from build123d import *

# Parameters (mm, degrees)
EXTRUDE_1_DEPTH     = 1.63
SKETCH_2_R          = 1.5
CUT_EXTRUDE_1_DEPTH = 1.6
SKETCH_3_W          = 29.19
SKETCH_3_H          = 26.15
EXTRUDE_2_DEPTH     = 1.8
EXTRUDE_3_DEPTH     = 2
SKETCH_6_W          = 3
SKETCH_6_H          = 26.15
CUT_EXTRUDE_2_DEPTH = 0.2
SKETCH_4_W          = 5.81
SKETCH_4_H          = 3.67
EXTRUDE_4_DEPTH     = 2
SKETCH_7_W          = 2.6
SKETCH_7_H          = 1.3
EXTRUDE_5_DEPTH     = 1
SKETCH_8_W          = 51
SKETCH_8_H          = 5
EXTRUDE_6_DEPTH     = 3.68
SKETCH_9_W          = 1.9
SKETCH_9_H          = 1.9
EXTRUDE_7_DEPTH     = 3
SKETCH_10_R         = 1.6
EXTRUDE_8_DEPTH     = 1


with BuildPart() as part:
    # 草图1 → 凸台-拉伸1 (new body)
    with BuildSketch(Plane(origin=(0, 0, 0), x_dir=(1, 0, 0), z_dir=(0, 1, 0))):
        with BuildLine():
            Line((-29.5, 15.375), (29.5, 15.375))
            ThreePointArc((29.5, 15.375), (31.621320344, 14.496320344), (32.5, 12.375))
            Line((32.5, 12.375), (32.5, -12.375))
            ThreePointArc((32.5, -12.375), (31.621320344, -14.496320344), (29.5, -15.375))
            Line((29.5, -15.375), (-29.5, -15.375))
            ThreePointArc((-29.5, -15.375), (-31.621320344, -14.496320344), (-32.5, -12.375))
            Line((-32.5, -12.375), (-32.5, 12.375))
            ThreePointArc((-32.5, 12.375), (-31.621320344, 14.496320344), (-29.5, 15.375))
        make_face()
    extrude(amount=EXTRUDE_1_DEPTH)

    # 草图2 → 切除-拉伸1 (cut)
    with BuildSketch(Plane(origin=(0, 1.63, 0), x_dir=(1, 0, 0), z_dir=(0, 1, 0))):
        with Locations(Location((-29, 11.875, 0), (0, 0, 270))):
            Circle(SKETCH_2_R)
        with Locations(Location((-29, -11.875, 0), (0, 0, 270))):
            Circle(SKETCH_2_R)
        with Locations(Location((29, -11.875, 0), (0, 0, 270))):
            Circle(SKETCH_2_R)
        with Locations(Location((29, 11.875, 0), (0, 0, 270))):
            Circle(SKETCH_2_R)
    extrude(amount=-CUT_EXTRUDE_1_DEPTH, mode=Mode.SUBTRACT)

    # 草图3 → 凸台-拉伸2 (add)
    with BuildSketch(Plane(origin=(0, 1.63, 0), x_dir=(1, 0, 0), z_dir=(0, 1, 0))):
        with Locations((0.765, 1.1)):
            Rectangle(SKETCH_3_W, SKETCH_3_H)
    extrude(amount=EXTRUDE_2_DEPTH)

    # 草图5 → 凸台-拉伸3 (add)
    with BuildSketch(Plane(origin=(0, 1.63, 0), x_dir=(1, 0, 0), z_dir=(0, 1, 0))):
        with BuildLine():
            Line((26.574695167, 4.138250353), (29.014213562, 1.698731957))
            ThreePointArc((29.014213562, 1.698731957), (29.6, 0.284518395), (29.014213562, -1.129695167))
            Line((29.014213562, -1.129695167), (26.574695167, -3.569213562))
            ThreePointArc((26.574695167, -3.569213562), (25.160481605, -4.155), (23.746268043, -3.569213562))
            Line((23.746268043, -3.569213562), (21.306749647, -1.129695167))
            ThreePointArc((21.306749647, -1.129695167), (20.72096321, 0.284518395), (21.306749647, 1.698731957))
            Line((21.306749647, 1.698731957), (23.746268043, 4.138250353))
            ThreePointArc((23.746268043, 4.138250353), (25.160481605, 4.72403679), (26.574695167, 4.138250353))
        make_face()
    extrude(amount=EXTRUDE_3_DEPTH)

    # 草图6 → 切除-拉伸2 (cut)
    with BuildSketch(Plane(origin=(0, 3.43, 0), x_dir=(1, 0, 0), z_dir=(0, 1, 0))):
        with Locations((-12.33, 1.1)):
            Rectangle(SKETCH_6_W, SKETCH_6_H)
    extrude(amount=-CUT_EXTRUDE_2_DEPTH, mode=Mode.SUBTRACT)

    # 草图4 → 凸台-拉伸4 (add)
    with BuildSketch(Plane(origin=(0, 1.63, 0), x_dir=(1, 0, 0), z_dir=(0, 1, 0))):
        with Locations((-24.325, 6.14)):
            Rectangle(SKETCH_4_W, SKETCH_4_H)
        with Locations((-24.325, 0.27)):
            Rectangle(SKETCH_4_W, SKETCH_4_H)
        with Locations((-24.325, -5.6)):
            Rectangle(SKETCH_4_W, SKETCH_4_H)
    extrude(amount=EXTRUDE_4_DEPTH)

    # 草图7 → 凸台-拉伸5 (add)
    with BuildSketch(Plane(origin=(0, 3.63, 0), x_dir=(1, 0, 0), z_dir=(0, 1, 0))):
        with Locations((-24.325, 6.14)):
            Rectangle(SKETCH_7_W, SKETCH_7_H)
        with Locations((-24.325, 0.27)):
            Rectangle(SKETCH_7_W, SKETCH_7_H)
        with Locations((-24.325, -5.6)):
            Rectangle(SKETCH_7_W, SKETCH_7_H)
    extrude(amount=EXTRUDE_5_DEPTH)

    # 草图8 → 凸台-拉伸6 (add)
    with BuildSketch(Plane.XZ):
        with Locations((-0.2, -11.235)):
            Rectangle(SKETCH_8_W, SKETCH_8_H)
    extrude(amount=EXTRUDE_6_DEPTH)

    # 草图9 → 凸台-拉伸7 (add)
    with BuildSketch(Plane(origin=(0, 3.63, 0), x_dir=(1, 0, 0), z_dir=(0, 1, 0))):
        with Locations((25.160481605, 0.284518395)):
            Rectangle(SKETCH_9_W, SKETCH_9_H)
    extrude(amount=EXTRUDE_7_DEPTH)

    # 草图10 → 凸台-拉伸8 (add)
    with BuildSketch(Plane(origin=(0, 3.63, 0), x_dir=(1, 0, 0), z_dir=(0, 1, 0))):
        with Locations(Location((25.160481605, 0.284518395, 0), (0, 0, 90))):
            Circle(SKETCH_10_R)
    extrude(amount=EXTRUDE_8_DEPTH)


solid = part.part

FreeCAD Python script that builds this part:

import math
import FreeCAD as App
import Part
import Sketcher

doc = App.newDocument("Part")
body = doc.addObject("PartDesign::Body", "Body")

sketch1 = doc.addObject("Sketcher::SketchObject", "Sketch")
body.addObject(sketch1)
sketch1.AttachmentSupport = (doc.XZ_Plane, [""])
sketch1.MapMode = "FlatFace"
sketch1.addGeometry([
    Part.LineSegment(App.Vector(29.5, -15.4, 0), App.Vector(-29.5, -15.4, 0)),
    Part.ArcOfCircle(Part.Circle(App.Vector(-29.5, -12.4, 0), App.Vector(0, 0, 1), 3), math.radians(180), math.radians(270)),
    Part.LineSegment(App.Vector(-32.5, -12.4, 0), App.Vector(-32.5, 12.4, 0)),
    Part.ArcOfCircle(Part.Circle(App.Vector(-29.5, 12.4, 0), App.Vector(0, 0, 1), 3), math.radians(90), math.radians(180)),
    Part.LineSegment(App.Vector(-29.5, 15.4, 0), App.Vector(29.5, 15.4, 0)),
    Part.ArcOfCircle(Part.Circle(App.Vector(29.5, 12.4, 0), App.Vector(0, 0, 1), 3), math.radians(0), math.radians(90)),
    Part.LineSegment(App.Vector(32.5, 12.4, 0), App.Vector(32.5, -12.4, 0)),
    Part.ArcOfCircle(Part.Circle(App.Vector(29.5, -12.4, 0), App.Vector(0, 0, 1), 3), math.radians(-90), math.radians(0)),
], False)
sketch1.addConstraint([
    Sketcher.Constraint("Tangent", 0, 2, 1, 2),
    Sketcher.Constraint("Tangent", 1, 1, 2, 1),
    Sketcher.Constraint("Tangent", 2, 2, 3, 2),
    Sketcher.Constraint("Tangent", 3, 1, 4, 1),
    Sketcher.Constraint("Tangent", 4, 2, 5, 2),
    Sketcher.Constraint("Tangent", 5, 1, 6, 1),
    Sketcher.Constraint("Tangent", 6, 2, 7, 2),
    Sketcher.Constraint("Tangent", 7, 1, 0, 1),
    Sketcher.Constraint("Horizontal", 0),
    Sketcher.Constraint("Vertical", 2),
    Sketcher.Constraint("Horizontal", 4),
    Sketcher.Constraint("Vertical", 6),
    Sketcher.Constraint("Equal", 1, 3),
    Sketcher.Constraint("Equal", 3, 5),
    Sketcher.Constraint("Equal", 5, 7),
    Sketcher.Constraint("Symmetric", 1, 3, 5, 3, -1, 1),
    Sketcher.Constraint("Radius", 1, 3.0),
    Sketcher.Constraint("DistanceX", 0, 2, 0, 1, 59.0),
    Sketcher.Constraint("DistanceY", 2, 1, 2, 2, 24.75),
])
pad1 = doc.addObject("PartDesign::Pad", "Pad")
body.addObject(pad1)
pad1.Profile = sketch1
pad1.Length = 1.63
pad1.Reversed = True

sketch2 = doc.addObject("Sketcher::SketchObject", "Sketch001")
body.addObject(sketch2)
sketch2.AttachmentSupport = (doc.XZ_Plane, [""])
sketch2.MapMode = "FlatFace"
sketch2.AttachmentOffset = App.Placement(App.Vector(0, 0, -1.63), App.Rotation())
sketch2.addGeometry([
    Part.Circle(App.Vector(-29, -11.9, 0), App.Vector(0, 0, 1), 1.5),
    Part.Circle(App.Vector(-29, 11.9, 0), App.Vector(0, 0, 1), 1.5),
    Part.Circle(App.Vector(29, 11.9, 0), App.Vector(0, 0, 1), 1.5),
    Part.Circle(App.Vector(29, -11.9, 0), App.Vector(0, 0, 1), 1.5),
], False)
sketch2.addConstraint([
    Sketcher.Constraint("Equal", 0, 1),
    Sketcher.Constraint("Equal", 1, 2),
    Sketcher.Constraint("Equal", 2, 3),
    Sketcher.Constraint("Symmetric", 0, 3, 2, 3, -1, 1),
    Sketcher.Constraint("Symmetric", 1, 3, 3, 3, -1, 1),
    Sketcher.Constraint("Symmetric", 1, 3, 2, 3, -2),
    Sketcher.Constraint("Diameter", 0, 3.0),
    Sketcher.Constraint("DistanceX", 0, 3, -1, 1, 29.0),
    Sketcher.Constraint("DistanceY", 0, 3, 1, 3, 23.75),
])
pocket1 = doc.addObject("PartDesign::Pocket", "Pocket")
body.addObject(pocket1)
pocket1.Profile = sketch2
pocket1.Length = 1.6
pocket1.Reversed = True

sketch3 = doc.addObject("Sketcher::SketchObject", "Sketch002")
body.addObject(sketch3)
sketch3.AttachmentSupport = (doc.XZ_Plane, [""])
sketch3.MapMode = "FlatFace"
sketch3.AttachmentOffset = App.Placement(App.Vector(0, 0, -1.63), App.Rotation())
sketch3.addGeometry([
    Part.LineSegment(App.Vector(-14, -14, 0), App.Vector(-14, 12, 0)),
    Part.LineSegment(App.Vector(-14, 12, 0), App.Vector(15, 12, 0)),
    Part.LineSegment(App.Vector(15, 12, 0), App.Vector(15, -14, 0)),
    Part.LineSegment(App.Vector(15, -14, 0), App.Vector(-14, -14, 0)),
], False)
sketch3.addConstraint([
    Sketcher.Constraint("Coincident", 0, 2, 1, 1),
    Sketcher.Constraint("Coincident", 1, 2, 2, 1),
    Sketcher.Constraint("Coincident", 2, 2, 3, 1),
    Sketcher.Constraint("Coincident", 3, 2, 0, 1),
    Sketcher.Constraint("Vertical", 0),
    Sketcher.Constraint("Horizontal", 1),
    Sketcher.Constraint("Vertical", 2),
    Sketcher.Constraint("Horizontal", 3),
    Sketcher.Constraint("DistanceX", 1, 1, 1, 2, 29.19),
    Sketcher.Constraint("DistanceY", 0, 1, 0, 2, 26.15),
    Sketcher.Constraint("DistanceX", 0, 2, -1, 1, 13.83),
    Sketcher.Constraint("DistanceY", -1, 1, 0, 2, 11.975),
])
pad2 = doc.addObject("PartDesign::Pad", "Pad001")
body.addObject(pad2)
pad2.Profile = sketch3
pad2.Length = 1.8
pad2.Reversed = True

sketch4 = doc.addObject("Sketcher::SketchObject", "Sketch003")
body.addObject(sketch4)
sketch4.AttachmentSupport = (doc.XZ_Plane, [""])
sketch4.MapMode = "FlatFace"
sketch4.AttachmentOffset = App.Placement(App.Vector(0, 0, -1.63), App.Rotation())
sketch4.addGeometry([
    Part.LineSegment(App.Vector(29, -1.7, 0), App.Vector(26.6, -4.1, 0)),
    Part.ArcOfCircle(Part.Circle(App.Vector(25.2, -2.7, 0), App.Vector(0, 0, 1), 2), math.radians(-135), math.radians(-45)),
    Part.LineSegment(App.Vector(23.7, -4.1, 0), App.Vector(21.3, -1.7, 0)),
    Part.ArcOfCircle(Part.Circle(App.Vector(22.7, -0.3, 0), App.Vector(0, 0, 1), 2), math.radians(135), math.radians(225)),
    Part.LineSegment(App.Vector(21.3, 1.1, 0), App.Vector(23.7, 3.6, 0)),
    Part.ArcOfCircle(Part.Circle(App.Vector(25.2, 2.2, 0), App.Vector(0, 0, 1), 2), math.radians(45), math.radians(135)),
    Part.LineSegment(App.Vector(26.6, 3.6, 0), App.Vector(29, 1.1, 0)),
    Part.ArcOfCircle(Part.Circle(App.Vector(27.6, -0.3, 0), App.Vector(0, 0, 1), 2), math.radians(-45), math.radians(45)),
], False)
sketch4.addConstraint([
    Sketcher.Constraint("Tangent", 0, 2, 1, 2),
    Sketcher.Constraint("Tangent", 1, 1, 2, 1),
    Sketcher.Constraint("Tangent", 2, 2, 3, 2),
    Sketcher.Constraint("Tangent", 3, 1, 4, 1),
    Sketcher.Constraint("Tangent", 4, 2, 5, 2),
    Sketcher.Constraint("Tangent", 5, 1, 6, 1),
    Sketcher.Constraint("Tangent", 6, 2, 7, 2),
    Sketcher.Constraint("Tangent", 7, 1, 0, 1),
    Sketcher.Constraint("Equal", 1, 3),
    Sketcher.Constraint("Equal", 3, 5),
    Sketcher.Constraint("Equal", 5, 7),
    Sketcher.Constraint("Perpendicular", 0, 2),
    Sketcher.Constraint("Perpendicular", 2, 4),
    Sketcher.Constraint("Perpendicular", 4, 6),
    Sketcher.Constraint("Horizontal", 3, 3, 7, 3),
    Sketcher.Constraint("Horizontal", 0, 2, 1, 1),
    Sketcher.Constraint("Radius", 1, 2.0),
    Sketcher.Constraint("DistanceX", -1, 1, 7, 3, 27.6),
    Sketcher.Constraint("Distance", 0, 3.45),
    Sketcher.Constraint("DistanceY", -1, 1, 5, 3, 2.155),
])
pad3 = doc.addObject("PartDesign::Pad", "Pad002")
body.addObject(pad3)
pad3.Profile = sketch4
pad3.Length = 2
pad3.Reversed = True

sketch5 = doc.addObject("Sketcher::SketchObject", "Sketch004")
body.addObject(sketch5)
sketch5.AttachmentSupport = (doc.XZ_Plane, [""])
sketch5.MapMode = "FlatFace"
sketch5.AttachmentOffset = App.Placement(App.Vector(0, 0, -3.43), App.Rotation())
sketch5.addGeometry([
    Part.LineSegment(App.Vector(-13.8, -14.2, 0), App.Vector(-13.8, 12, 0)),
    Part.LineSegment(App.Vector(-13.8, 12, 0), App.Vector(-10.8, 12, 0)),
    Part.LineSegment(App.Vector(-10.8, 12, 0), App.Vector(-10.8, -14.2, 0)),
    Part.LineSegment(App.Vector(-10.8, -14.2, 0), App.Vector(-13.8, -14.2, 0)),
], False)
sketch5.addConstraint([
    Sketcher.Constraint("Coincident", 0, 2, 1, 1),
    Sketcher.Constraint("Coincident", 1, 2, 2, 1),
    Sketcher.Constraint("Coincident", 2, 2, 3, 1),
    Sketcher.Constraint("Coincident", 3, 2, 0, 1),
    Sketcher.Constraint("Vertical", 0),
    Sketcher.Constraint("Horizontal", 1),
    Sketcher.Constraint("Vertical", 2),
    Sketcher.Constraint("Horizontal", 3),
    Sketcher.Constraint("DistanceX", 1, 1, 1, 2, 3.0),
    Sketcher.Constraint("DistanceY", 0, 1, 0, 2, 26.15),
    Sketcher.Constraint("DistanceX", 0, 2, -1, 1, 13.83),
    Sketcher.Constraint("DistanceY", -1, 1, 0, 2, 11.975),
])
pocket2 = doc.addObject("PartDesign::Pocket", "Pocket001")
body.addObject(pocket2)
pocket2.Profile = sketch5
pocket2.Length = 0.2
pocket2.Reversed = True

sketch6 = doc.addObject("Sketcher::SketchObject", "Sketch005")
body.addObject(sketch6)
sketch6.AttachmentSupport = (doc.XZ_Plane, [""])
sketch6.MapMode = "FlatFace"
sketch6.AttachmentOffset = App.Placement(App.Vector(0, 0, -1.63), App.Rotation())
sketch6.addGeometry([
    Part.LineSegment(App.Vector(-27.2, -8, 0), App.Vector(-27.2, -4.3, 0)),
    Part.LineSegment(App.Vector(-27.2, -4.3, 0), App.Vector(-21.4, -4.3, 0)),
    Part.LineSegment(App.Vector(-21.4, -4.3, 0), App.Vector(-21.4, -8, 0)),
    Part.LineSegment(App.Vector(-21.4, -8, 0), App.Vector(-27.2, -8, 0)),
    Part.LineSegment(App.Vector(-27.2, -2.1, 0), App.Vector(-27.2, 1.6, 0)),
    Part.LineSegment(App.Vector(-27.2, 1.6, 0), App.Vector(-21.4, 1.6, 0)),
    Part.LineSegment(App.Vector(-21.4, 1.6, 0), App.Vector(-21.4, -2.1, 0)),
    Part.LineSegment(App.Vector(-21.4, -2.1, 0), App.Vector(-27.2, -2.1, 0)),
    Part.LineSegment(App.Vector(-27.2, 3.8, 0), App.Vector(-27.2, 7.4, 0)),
    Part.LineSegment(App.Vector(-27.2, 7.4, 0), App.Vector(-21.4, 7.4, 0)),
    Part.LineSegment(App.Vector(-21.4, 7.4, 0), App.Vector(-21.4, 3.8, 0)),
    Part.LineSegment(App.Vector(-21.4, 3.8, 0), App.Vector(-27.2, 3.8, 0)),
], False)
sketch6.addConstraint([
    Sketcher.Constraint("Coincident", 0, 2, 1, 1),
    Sketcher.Constraint("Coincident", 1, 2, 2, 1),
    Sketcher.Constraint("Coincident", 2, 2, 3, 1),
    Sketcher.Constraint("Coincident", 3, 2, 0, 1),
    Sketcher.Constraint("Coincident", 4, 2, 5, 1),
    Sketcher.Constraint("Coincident", 5, 2, 6, 1),
    Sketcher.Constraint("Coincident", 6, 2, 7, 1),
    Sketcher.Constraint("Coincident", 7, 2, 4, 1),
    Sketcher.Constraint("Coincident", 8, 2, 9, 1),
    Sketcher.Constraint("Coincident", 9, 2, 10, 1),
    Sketcher.Constraint("Coincident", 10, 2, 11, 1),
    Sketcher.Constraint("Coincident", 11, 2, 8, 1),
    Sketcher.Constraint("Vertical", 0),
    Sketcher.Constraint("Horizontal", 1),
    Sketcher.Constraint("Vertical", 2),
    Sketcher.Constraint("Horizontal", 3),
    Sketcher.Constraint("Vertical", 4),
    Sketcher.Constraint("Horizontal", 5),
    Sketcher.Constraint("Vertical", 6),
    Sketcher.Constraint("Horizontal", 7),
    Sketcher.Constraint("Vertical", 8),
    Sketcher.Constraint("Horizontal", 9),
    Sketcher.Constraint("Vertical", 10),
    Sketcher.Constraint("Horizontal", 11),
    Sketcher.Constraint("Vertical", 3, 2, 4, 2),
    Sketcher.Constraint("Vertical", 2, 2, 5, 2),
    Sketcher.Constraint("Vertical", 7, 2, 8, 2),
    Sketcher.Constraint("Vertical", 6, 2, 9, 2),
    Sketcher.Constraint("Equal", 2, 4),
    Sketcher.Constraint("Equal", 6, 8),
    Sketcher.Constraint("DistanceX", 1, 1, 1, 2, 5.81),
    Sketcher.Constraint("DistanceY", 0, 1, 0, 2, 3.67),
    Sketcher.Constraint("DistanceY", 1, 2, 6, 2, 2.2),
    Sketcher.Constraint("DistanceY", 5, 2, 10, 2, 2.2),
    Sketcher.Constraint("DistanceX", 0, 2, -1, 1, 27.23),
    Sketcher.Constraint("DistanceY", 0, 2, -1, 1, 4.305),
])
pad4 = doc.addObject("PartDesign::Pad", "Pad003")
body.addObject(pad4)
pad4.Profile = sketch6
pad4.Length = 2
pad4.Reversed = True

sketch7 = doc.addObject("Sketcher::SketchObject", "Sketch006")
body.addObject(sketch7)
sketch7.AttachmentSupport = (doc.XZ_Plane, [""])
sketch7.MapMode = "FlatFace"
sketch7.AttachmentOffset = App.Placement(App.Vector(0, 0, -3.63), App.Rotation())
sketch7.addGeometry([
    Part.LineSegment(App.Vector(-25.6, -6.8, 0), App.Vector(-25.6, -5.5, 0)),
    Part.LineSegment(App.Vector(-25.6, -5.5, 0), App.Vector(-23, -5.5, 0)),
    Part.LineSegment(App.Vector(-23, -5.5, 0), App.Vector(-23, -6.8, 0)),
    Part.LineSegment(App.Vector(-23, -6.8, 0), App.Vector(-25.6, -6.8, 0)),
    Part.LineSegment(App.Vector(-25.6, -0.9, 0), App.Vector(-25.6, 0.4, 0)),
    Part.LineSegment(App.Vector(-25.6, 0.4, 0), App.Vector(-23, 0.4, 0)),
    Part.LineSegment(App.Vector(-23, 0.4, 0), App.Vector(-23, -0.9, 0)),
    Part.LineSegment(App.Vector(-23, -0.9, 0), App.Vector(-25.6, -0.9, 0)),
    Part.LineSegment(App.Vector(-25.6, 5, 0), App.Vector(-25.6, 6.2, 0)),
    Part.LineSegment(App.Vector(-25.6, 6.2, 0), App.Vector(-23, 6.2, 0)),
    Part.LineSegment(App.Vector(-23, 6.2, 0), App.Vector(-23, 5, 0)),
    Part.LineSegment(App.Vector(-23, 5, 0), App.Vector(-25.6, 5, 0)),
], False)
sketch7.addConstraint([
    Sketcher.Constraint("Coincident", 0, 2, 1, 1),
    Sketcher.Constraint("Coincident", 1, 2, 2, 1),
    Sketcher.Constraint("Coincident", 2, 2, 3, 1),
    Sketcher.Constraint("Coincident", 3, 2, 0, 1),
    Sketcher.Constraint("Coincident", 4, 2, 5, 1),
    Sketcher.Constraint("Coincident", 5, 2, 6, 1),
    Sketcher.Constraint("Coincident", 6, 2, 7, 1),
    Sketcher.Constraint("Coincident", 7, 2, 4, 1),
    Sketcher.Constraint("Coincident", 8, 2, 9, 1),
    Sketcher.Constraint("Coincident", 9, 2, 10, 1),
    Sketcher.Constraint("Coincident", 10, 2, 11, 1),
    Sketcher.Constraint("Coincident", 11, 2, 8, 1),
    Sketcher.Constraint("Vertical", 0),
    Sketcher.Constraint("Horizontal", 1),
    Sketcher.Constraint("Vertical", 2),
    Sketcher.Constraint("Horizontal", 3),
    Sketcher.Constraint("Vertical", 4),
    Sketcher.Constraint("Horizontal", 5),
    Sketcher.Constraint("Vertical", 6),
    Sketcher.Constraint("Horizontal", 7),
    Sketcher.Constraint("Vertical", 8),
    Sketcher.Constraint("Horizontal", 9),
    Sketcher.Constraint("Vertical", 10),
    Sketcher.Constraint("Horizontal", 11),
    Sketcher.Constraint("Vertical", 3, 2, 4, 2),
    Sketcher.Constraint("Vertical", 2, 2, 5, 2),
    Sketcher.Constraint("Vertical", 7, 2, 8, 2),
    Sketcher.Constraint("Vertical", 6, 2, 9, 2),
    Sketcher.Constraint("Equal", 2, 4),
    Sketcher.Constraint("Equal", 6, 8),
    Sketcher.Constraint("DistanceX", 1, 1, 1, 2, 2.6),
    Sketcher.Constraint("DistanceY", 0, 1, 0, 2, 1.3),
    Sketcher.Constraint("DistanceY", 0, 2, -1, 1, 5.49),
    Sketcher.Constraint("DistanceY", -1, 1, 4, 2, 0.38),
    Sketcher.Constraint("DistanceY", -1, 1, 8, 2, 6.25),
    Sketcher.Constraint("DistanceX", 0, 2, -1, 1, 25.625),
])
pad5 = doc.addObject("PartDesign::Pad", "Pad004")
body.addObject(pad5)
pad5.Profile = sketch7
pad5.Length = 1
pad5.Reversed = True

sketch8 = doc.addObject("Sketcher::SketchObject", "Sketch007")
body.addObject(sketch8)
sketch8.AttachmentSupport = (doc.XZ_Plane, [""])
sketch8.MapMode = "FlatFace"
sketch8.addGeometry([
    Part.LineSegment(App.Vector(-26, -9, 0), App.Vector(-26, -14, 0)),
    Part.LineSegment(App.Vector(-26, -14, 0), App.Vector(25, -14, 0)),
    Part.LineSegment(App.Vector(25, -14, 0), App.Vector(25, -9, 0)),
    Part.LineSegment(App.Vector(25, -9, 0), App.Vector(-26, -9, 0)),
], False)
sketch8.addConstraint([
    Sketcher.Constraint("Coincident", 0, 2, 1, 1),
    Sketcher.Constraint("Coincident", 1, 2, 2, 1),
    Sketcher.Constraint("Coincident", 2, 2, 3, 1),
    Sketcher.Constraint("Coincident", 3, 2, 0, 1),
    Sketcher.Constraint("Vertical", 0),
    Sketcher.Constraint("Horizontal", 1),
    Sketcher.Constraint("Vertical", 2),
    Sketcher.Constraint("Horizontal", 3),
    Sketcher.Constraint("DistanceX", 1, 1, 1, 2, 51.0),
    Sketcher.Constraint("DistanceY", 0, 2, 0, 1, 5.0),
    Sketcher.Constraint("DistanceX", 0, 2, -1, 1, 25.7),
    Sketcher.Constraint("DistanceY", 0, 2, -1, 1, 13.735),
])
pad6 = doc.addObject("PartDesign::Pad", "Pad005")
body.addObject(pad6)
pad6.Profile = sketch8
pad6.Length = 3.68

sketch9 = doc.addObject("Sketcher::SketchObject", "Sketch008")
body.addObject(sketch9)
sketch9.AttachmentSupport = (doc.XZ_Plane, [""])
sketch9.MapMode = "FlatFace"
sketch9.AttachmentOffset = App.Placement(App.Vector(0, 0, -3.63), App.Rotation())
sketch9.addGeometry([
    Part.LineSegment(App.Vector(24.2, -1.2, 0), App.Vector(24.2, 0.7, 0)),
    Part.LineSegment(App.Vector(24.2, 0.7, 0), App.Vector(26.1, 0.7, 0)),
    Part.LineSegment(App.Vector(26.1, 0.7, 0), App.Vector(26.1, -1.2, 0)),
    Part.LineSegment(App.Vector(26.1, -1.2, 0), App.Vector(24.2, -1.2, 0)),
], False)
sketch9.addConstraint([
    Sketcher.Constraint("Coincident", 0, 2, 1, 1),
    Sketcher.Constraint("Coincident", 1, 2, 2, 1),
    Sketcher.Constraint("Coincident", 2, 2, 3, 1),
    Sketcher.Constraint("Coincident", 3, 2, 0, 1),
    Sketcher.Constraint("Vertical", 0),
    Sketcher.Constraint("Horizontal", 1),
    Sketcher.Constraint("Vertical", 2),
    Sketcher.Constraint("Horizontal", 3),
    Sketcher.Constraint("Equal", 3, 0),
    Sketcher.Constraint("DistanceX", 1, 1, 1, 2, 1.9),
    Sketcher.Constraint("DistanceX", -1, 1, 0, 2, 24.210482),
    Sketcher.Constraint("DistanceY", -1, 1, 0, 2, 0.665482),
])
pad7 = doc.addObject("PartDesign::Pad", "Pad006")
body.addObject(pad7)
pad7.Profile = sketch9
pad7.Length = 3
pad7.Reversed = True

sketch10 = doc.addObject("Sketcher::SketchObject", "Sketch009")
body.addObject(sketch10)
sketch10.AttachmentSupport = (doc.XZ_Plane, [""])
sketch10.MapMode = "FlatFace"
sketch10.AttachmentOffset = App.Placement(App.Vector(0, 0, -3.63), App.Rotation())
sketch10.addGeometry(Part.Circle(App.Vector(25.2, -0.3, 0), App.Vector(0, 0, 1), 1.6), False)
sketch10.addConstraint([
    Sketcher.Constraint("Diameter", 0, 3.2),
    Sketcher.Constraint("DistanceX", -1, 1, 0, 3, 25.160482),
    Sketcher.Constraint("DistanceY", 0, 3, -1, 1, 0.284518),
])
pad8 = doc.addObject("PartDesign::Pad", "Pad007")
body.addObject(pad8)
pad8.Profile = sketch10
pad8.Length = 1
pad8.Reversed = True

doc.recompute()
